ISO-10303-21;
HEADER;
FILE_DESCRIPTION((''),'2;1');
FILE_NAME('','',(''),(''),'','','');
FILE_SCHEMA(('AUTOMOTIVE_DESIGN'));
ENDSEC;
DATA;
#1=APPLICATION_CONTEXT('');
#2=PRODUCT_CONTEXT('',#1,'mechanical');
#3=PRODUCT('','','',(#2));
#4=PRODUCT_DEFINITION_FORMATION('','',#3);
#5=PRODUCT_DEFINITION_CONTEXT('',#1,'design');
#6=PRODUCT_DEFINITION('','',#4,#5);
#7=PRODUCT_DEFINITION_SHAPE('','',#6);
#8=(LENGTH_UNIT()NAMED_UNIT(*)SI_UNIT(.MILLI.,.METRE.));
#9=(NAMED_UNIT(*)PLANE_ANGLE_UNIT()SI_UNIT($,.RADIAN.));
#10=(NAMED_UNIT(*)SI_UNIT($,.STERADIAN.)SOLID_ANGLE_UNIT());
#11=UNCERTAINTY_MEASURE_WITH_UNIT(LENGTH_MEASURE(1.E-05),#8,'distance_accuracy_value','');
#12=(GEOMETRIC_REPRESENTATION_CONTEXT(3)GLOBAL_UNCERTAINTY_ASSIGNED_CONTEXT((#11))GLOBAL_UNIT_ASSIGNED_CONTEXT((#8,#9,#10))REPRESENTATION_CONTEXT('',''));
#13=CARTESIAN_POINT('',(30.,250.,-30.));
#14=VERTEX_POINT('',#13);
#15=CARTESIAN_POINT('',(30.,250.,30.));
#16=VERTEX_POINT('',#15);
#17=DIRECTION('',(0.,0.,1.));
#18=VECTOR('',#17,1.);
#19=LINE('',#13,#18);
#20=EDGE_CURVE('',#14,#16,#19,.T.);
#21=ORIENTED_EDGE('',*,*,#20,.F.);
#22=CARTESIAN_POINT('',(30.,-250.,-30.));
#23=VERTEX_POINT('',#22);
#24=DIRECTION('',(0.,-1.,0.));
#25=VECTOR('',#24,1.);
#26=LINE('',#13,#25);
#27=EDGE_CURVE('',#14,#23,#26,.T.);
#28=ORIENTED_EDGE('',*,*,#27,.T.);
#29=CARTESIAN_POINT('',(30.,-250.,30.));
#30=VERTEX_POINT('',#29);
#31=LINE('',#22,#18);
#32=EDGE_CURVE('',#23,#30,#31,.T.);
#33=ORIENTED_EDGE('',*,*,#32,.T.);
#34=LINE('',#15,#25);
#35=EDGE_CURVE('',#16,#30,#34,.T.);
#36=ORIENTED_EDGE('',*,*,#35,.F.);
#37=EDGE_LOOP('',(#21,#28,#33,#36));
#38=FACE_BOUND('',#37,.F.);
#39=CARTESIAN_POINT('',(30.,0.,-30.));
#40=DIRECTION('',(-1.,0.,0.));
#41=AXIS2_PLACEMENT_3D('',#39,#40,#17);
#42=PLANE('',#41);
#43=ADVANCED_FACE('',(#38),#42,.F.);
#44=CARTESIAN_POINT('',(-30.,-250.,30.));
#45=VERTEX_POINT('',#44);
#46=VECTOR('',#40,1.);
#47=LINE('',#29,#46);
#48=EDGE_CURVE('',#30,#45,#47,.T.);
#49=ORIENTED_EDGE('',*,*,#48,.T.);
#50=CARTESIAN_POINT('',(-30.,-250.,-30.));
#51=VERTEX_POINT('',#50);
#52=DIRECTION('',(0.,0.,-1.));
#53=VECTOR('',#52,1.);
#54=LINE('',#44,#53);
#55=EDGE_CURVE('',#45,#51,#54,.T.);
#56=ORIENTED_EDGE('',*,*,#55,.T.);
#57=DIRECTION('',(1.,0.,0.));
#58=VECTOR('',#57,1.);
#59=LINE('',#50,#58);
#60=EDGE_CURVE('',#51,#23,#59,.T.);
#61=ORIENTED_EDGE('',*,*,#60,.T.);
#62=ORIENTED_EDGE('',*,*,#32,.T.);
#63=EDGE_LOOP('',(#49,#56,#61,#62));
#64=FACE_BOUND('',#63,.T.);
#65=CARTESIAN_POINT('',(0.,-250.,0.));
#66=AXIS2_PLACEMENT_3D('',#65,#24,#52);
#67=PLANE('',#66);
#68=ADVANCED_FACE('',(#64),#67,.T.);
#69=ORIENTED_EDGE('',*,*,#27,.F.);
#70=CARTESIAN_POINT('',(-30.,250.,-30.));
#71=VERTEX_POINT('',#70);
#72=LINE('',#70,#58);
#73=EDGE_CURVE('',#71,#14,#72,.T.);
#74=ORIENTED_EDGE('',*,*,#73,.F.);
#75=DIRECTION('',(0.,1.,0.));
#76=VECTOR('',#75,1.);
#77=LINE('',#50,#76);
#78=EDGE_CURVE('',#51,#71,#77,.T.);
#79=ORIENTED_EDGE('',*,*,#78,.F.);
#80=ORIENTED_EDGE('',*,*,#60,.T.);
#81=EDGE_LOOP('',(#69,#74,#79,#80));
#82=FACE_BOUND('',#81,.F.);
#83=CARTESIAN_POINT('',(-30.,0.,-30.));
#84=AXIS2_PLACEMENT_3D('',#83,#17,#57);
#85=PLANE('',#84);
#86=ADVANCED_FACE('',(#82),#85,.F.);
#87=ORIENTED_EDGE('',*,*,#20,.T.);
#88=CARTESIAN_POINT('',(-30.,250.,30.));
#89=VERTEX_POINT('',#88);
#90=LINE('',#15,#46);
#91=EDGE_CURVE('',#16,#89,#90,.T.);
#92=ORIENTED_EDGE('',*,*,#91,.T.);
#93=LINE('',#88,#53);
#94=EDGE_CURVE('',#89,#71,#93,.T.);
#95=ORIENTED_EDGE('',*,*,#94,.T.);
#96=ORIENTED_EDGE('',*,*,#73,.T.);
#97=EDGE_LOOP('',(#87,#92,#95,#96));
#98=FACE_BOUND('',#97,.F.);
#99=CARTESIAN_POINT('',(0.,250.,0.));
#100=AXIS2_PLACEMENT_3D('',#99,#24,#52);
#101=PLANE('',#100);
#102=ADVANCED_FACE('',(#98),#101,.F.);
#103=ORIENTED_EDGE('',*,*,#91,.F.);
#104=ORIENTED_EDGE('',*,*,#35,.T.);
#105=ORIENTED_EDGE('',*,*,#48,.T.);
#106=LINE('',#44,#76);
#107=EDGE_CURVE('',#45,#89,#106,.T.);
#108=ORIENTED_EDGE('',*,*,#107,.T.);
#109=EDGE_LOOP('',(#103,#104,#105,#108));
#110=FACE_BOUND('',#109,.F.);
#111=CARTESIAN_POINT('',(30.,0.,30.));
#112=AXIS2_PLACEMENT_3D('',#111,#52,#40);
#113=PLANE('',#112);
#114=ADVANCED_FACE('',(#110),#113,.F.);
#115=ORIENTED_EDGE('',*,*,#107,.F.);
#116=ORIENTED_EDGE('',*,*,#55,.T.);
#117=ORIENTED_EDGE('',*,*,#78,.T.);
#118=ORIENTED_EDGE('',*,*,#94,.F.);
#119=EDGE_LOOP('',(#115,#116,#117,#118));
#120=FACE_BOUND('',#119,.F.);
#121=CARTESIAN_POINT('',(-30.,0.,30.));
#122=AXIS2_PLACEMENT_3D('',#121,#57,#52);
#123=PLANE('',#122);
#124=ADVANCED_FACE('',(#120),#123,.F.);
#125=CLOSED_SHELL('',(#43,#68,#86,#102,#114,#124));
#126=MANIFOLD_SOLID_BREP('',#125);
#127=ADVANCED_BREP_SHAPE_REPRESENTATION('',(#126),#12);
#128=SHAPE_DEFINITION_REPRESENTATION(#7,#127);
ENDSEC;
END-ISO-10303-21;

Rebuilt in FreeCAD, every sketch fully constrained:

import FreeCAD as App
import Part
import Sketcher
Q = App.Units.Quantity


def add_polygon(sketch, points):
    """Adds a closed chain of lines whose ends are joined by coincident constraints."""
    first, n = sketch.GeometryCount, len(points)
    for a, b in zip(points, points[1:] + points[:1]):
        sketch.addGeometry(Part.LineSegment(App.Vector(*a, 0), App.Vector(*b, 0)), False)
    for i in range(n):
        sketch.addConstraint(Sketcher.Constraint("Coincident", first + i, 2, first + (i + 1) % n, 1))

doc = App.newDocument("Part")
body = doc.addObject("PartDesign::Body", "Body")

sketch1 = doc.addObject("Sketcher::SketchObject", "Sketch")
body.addObject(sketch1)
sketch1.AttachmentSupport = (doc.XZ_Plane, [""])
sketch1.MapMode = "FlatFace"
add_polygon(sketch1, [(-30, 30), (-30, -30), (30, -30), (30, 30)])
sketch1.addConstraint([
    Sketcher.Constraint("Vertical", 0),
    Sketcher.Constraint("Horizontal", 1),
    Sketcher.Constraint("Vertical", 2),
    Sketcher.Constraint("Horizontal", 3),
    Sketcher.Constraint("Symmetric", 0, 2, 2, 2, -1, 1),
    Sketcher.Constraint("Equal", 3, 0),
    Sketcher.Constraint("DistanceX", 1, 1, 1, 2, Q("60 mm")),
])
pad1 = doc.addObject("PartDesign::Pad", "Pad")
body.addObject(pad1)
pad1.Profile = sketch1
pad1.Length = 500
pad1.Midplane = True

doc.recompute()
